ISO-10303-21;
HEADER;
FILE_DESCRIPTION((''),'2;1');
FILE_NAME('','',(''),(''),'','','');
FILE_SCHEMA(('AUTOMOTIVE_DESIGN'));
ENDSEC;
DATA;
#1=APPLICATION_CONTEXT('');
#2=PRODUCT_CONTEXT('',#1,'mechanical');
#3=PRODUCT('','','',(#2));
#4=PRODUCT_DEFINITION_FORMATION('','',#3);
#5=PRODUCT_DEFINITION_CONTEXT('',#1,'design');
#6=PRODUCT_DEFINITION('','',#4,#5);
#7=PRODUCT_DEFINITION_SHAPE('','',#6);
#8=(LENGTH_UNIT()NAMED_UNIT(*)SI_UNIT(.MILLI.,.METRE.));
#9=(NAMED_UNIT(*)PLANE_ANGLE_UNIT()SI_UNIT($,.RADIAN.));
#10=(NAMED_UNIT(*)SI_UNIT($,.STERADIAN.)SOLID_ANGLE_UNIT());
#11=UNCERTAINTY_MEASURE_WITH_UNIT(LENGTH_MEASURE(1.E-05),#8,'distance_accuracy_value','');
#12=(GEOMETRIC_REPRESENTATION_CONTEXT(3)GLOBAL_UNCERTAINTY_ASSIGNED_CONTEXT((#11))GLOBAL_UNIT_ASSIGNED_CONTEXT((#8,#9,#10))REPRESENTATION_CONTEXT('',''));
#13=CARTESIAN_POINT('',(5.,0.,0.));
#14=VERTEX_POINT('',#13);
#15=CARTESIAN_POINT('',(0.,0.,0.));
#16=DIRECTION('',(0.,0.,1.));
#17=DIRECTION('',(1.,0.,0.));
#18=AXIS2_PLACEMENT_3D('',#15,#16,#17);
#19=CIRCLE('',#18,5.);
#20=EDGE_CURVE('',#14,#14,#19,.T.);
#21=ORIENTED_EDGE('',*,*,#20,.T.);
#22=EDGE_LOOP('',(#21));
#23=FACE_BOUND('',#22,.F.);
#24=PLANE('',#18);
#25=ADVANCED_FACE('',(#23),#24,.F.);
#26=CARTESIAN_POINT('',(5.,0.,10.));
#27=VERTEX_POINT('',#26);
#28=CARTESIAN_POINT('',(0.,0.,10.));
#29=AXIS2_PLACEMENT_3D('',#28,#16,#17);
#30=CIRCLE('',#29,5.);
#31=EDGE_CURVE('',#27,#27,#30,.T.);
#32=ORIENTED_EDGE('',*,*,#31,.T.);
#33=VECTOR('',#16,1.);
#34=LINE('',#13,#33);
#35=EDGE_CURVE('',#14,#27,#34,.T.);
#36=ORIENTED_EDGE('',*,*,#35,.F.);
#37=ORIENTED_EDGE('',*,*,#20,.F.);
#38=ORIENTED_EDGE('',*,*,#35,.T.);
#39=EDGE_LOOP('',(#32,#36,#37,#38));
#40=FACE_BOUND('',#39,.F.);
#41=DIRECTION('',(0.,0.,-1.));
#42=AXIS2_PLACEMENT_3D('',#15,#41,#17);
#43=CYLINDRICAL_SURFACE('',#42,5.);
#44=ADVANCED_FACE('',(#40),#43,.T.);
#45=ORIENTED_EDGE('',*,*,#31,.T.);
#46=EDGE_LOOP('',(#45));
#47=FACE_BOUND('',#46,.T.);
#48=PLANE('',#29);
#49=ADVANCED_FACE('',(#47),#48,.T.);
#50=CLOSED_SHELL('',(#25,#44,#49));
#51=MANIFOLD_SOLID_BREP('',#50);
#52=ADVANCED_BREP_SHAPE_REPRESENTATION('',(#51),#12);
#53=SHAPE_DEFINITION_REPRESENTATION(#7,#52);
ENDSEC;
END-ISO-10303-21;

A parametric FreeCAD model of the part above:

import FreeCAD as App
import Part
import Sketcher
from FreeCAD import Vector

doc = App.newDocument("Part")
params = doc.addObject("Spreadsheet::Sheet", "Params")
for row, (alias, value) in enumerate([
    ("sketch1_diameter", "10 mm"),
    ("pad1_length", "10 mm"),
], start=1):
    params.set(f"A{row}", alias)
    params.set(f"B{row}", "=" + value)
    params.setAlias(f"B{row}", alias)

body = doc.addObject("PartDesign::Body", "Body")

# Sketch on XY plane
sketch1 = body.newObject("Sketcher::SketchObject", "Sketch")
sketch1.AttachmentSupport = (doc.getObject("XY_Plane"), [""])
sketch1.MapMode = "FlatFace"
sketch1.addGeometry(Part.Circle(Vector(0, 0, 0), Vector(0, 0, 1), 5), False)
sketch1.addConstraint(Sketcher.Constraint("Coincident", 0, 3, -1, 1))
sketch1.addConstraint(Sketcher.Constraint("Diameter", 0, 10.0))
sketch1.setExpression("Constraints[1]", "Params.sketch1_diameter")
pad1 = body.newObject("PartDesign::Pad", "Pad")
pad1.Profile = sketch1
pad1.setExpression("Length", "Params.pad1_length")

doc.recompute()
